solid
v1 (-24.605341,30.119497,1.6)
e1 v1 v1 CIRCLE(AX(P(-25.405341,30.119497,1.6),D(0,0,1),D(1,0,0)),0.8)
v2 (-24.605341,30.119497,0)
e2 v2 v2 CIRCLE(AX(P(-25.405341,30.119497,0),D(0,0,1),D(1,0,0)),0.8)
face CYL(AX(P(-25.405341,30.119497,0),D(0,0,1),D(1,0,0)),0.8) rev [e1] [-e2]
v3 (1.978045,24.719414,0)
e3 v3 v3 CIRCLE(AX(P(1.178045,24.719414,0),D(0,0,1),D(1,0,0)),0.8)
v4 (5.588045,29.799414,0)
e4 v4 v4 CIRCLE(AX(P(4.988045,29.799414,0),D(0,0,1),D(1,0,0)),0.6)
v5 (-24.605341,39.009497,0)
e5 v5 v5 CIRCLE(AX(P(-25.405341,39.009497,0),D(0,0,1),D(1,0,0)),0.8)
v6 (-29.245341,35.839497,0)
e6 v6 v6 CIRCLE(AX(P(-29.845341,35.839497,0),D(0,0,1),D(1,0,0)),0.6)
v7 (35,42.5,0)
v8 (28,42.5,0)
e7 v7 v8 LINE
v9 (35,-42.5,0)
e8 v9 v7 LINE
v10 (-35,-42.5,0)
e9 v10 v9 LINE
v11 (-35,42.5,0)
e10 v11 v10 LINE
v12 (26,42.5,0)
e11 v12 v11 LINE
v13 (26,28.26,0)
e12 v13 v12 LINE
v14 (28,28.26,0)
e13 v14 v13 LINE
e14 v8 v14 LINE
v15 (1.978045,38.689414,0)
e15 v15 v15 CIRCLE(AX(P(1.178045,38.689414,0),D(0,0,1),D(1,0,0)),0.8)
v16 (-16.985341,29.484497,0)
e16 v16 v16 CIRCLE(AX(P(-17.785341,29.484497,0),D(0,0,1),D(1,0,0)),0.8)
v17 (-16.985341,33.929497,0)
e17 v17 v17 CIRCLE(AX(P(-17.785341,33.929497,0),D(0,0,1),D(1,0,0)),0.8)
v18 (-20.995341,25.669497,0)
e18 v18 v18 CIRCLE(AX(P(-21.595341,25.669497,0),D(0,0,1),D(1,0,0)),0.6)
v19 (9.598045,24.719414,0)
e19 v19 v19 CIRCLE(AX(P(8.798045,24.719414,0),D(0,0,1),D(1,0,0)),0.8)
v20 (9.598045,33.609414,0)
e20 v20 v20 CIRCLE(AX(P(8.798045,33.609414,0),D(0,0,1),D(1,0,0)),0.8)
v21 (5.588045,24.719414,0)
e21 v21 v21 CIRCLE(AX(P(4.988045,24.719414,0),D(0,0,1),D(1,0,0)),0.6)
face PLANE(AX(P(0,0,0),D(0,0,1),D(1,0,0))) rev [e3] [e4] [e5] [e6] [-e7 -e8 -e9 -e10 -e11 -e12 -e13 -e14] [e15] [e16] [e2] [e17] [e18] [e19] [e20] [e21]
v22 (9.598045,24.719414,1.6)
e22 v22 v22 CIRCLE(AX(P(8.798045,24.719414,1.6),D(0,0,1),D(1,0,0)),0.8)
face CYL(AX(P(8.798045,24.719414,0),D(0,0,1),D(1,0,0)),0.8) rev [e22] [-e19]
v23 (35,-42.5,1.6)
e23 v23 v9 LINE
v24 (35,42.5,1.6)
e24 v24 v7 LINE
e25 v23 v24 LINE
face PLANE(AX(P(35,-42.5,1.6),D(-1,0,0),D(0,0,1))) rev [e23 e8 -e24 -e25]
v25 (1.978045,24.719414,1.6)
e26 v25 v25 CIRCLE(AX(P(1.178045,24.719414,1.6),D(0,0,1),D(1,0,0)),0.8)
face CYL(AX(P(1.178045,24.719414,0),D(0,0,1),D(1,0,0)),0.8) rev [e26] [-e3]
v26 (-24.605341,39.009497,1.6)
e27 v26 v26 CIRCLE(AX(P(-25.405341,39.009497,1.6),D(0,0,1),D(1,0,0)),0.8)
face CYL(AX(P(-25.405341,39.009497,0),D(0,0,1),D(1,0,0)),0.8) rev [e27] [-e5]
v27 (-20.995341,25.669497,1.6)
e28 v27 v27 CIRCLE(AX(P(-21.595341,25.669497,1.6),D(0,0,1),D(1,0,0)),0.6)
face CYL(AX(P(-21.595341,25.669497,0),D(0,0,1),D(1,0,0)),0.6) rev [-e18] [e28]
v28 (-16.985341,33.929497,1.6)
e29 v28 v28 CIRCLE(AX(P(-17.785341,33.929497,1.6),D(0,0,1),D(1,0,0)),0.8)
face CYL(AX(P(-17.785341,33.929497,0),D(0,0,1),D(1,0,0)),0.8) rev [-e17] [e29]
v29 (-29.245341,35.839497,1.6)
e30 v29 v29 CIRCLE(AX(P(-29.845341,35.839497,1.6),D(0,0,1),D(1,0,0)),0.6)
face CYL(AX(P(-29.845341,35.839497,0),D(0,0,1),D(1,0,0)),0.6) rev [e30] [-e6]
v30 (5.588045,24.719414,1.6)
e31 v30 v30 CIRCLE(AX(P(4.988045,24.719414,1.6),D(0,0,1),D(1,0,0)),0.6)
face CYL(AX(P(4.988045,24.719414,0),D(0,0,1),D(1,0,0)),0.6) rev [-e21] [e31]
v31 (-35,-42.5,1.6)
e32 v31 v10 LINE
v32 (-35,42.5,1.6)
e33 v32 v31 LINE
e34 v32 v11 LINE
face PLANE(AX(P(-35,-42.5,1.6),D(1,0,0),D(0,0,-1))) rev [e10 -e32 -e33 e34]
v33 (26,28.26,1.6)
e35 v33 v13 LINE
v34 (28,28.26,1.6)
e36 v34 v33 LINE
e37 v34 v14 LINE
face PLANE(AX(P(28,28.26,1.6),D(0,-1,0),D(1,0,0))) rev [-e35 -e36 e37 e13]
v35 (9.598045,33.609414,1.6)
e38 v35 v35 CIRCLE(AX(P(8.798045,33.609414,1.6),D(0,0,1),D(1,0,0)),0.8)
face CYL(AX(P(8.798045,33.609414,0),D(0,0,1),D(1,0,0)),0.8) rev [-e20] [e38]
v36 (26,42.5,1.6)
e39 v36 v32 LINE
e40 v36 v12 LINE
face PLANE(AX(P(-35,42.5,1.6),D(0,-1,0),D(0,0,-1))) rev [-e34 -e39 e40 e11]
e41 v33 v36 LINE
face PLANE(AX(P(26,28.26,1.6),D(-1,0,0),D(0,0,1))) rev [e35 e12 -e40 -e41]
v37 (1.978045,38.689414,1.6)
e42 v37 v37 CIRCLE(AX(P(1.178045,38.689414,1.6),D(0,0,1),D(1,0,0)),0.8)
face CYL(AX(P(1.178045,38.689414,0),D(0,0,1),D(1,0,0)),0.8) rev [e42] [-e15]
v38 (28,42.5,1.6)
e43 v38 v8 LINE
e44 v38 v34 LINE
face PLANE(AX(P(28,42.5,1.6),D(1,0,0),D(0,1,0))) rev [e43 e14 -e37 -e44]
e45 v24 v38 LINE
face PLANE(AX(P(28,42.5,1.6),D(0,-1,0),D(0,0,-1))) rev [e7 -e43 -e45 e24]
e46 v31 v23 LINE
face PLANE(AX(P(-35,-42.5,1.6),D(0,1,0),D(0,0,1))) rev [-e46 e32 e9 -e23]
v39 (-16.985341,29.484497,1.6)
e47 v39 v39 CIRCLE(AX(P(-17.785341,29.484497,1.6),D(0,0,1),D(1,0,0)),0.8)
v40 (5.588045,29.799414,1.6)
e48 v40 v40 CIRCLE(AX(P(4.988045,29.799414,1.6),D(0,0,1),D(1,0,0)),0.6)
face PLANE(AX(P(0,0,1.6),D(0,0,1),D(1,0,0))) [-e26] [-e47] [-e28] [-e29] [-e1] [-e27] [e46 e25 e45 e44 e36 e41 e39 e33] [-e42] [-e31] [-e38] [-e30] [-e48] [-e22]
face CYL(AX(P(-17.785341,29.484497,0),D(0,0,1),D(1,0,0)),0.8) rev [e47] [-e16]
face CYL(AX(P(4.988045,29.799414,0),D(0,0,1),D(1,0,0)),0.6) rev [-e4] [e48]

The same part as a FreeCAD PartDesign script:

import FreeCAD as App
import Part
import Sketcher


def add_polygon(sketch, points):
    """Adds a closed chain of lines whose ends are joined by coincident constraints."""
    first, n = sketch.GeometryCount, len(points)
    for a, b in zip(points, points[1:] + points[:1]):
        sketch.addGeometry(Part.LineSegment(App.Vector(*a, 0), App.Vector(*b, 0)), False)
    for i in range(n):
        sketch.addConstraint(Sketcher.Constraint("Coincident", first + i, 2, first + (i + 1) % n, 1))

doc = App.newDocument("Part")
body = doc.addObject("PartDesign::Body", "Body")

sketch1 = body.newObject("Sketcher::SketchObject", "Sketch")
sketch1.AttachmentSupport = (doc.getObject("XY_Plane"), [""])
sketch1.MapMode = "FlatFace"
add_polygon(sketch1, [(28, 42.5), (28, 28.3), (26, 28.3), (26, 42.5), (-35, 42.5), (-35, -42.5), (35, -42.5), (35, 42.5)])
sketch1.addConstraint([
    Sketcher.Constraint("Vertical", 0),
    Sketcher.Constraint("Horizontal", 1),
    Sketcher.Constraint("Vertical", 2),
    Sketcher.Constraint("Horizontal", 3),
    Sketcher.Constraint("Vertical", 4),
    Sketcher.Constraint("Horizontal", 5),
    Sketcher.Constraint("Vertical", 6),
    Sketcher.Constraint("Horizontal", 7),
    Sketcher.Constraint("Symmetric", 3, 2, 5, 2, -1, 1),
    Sketcher.Constraint("Horizontal", 3, 2, 6, 2),
    Sketcher.Constraint("DistanceX", 1, 2, 1, 1, 2.0),
    Sketcher.Constraint("DistanceX", 3, 2, 3, 1, 61.0),
    Sketcher.Constraint("DistanceX", 5, 1, 5, 2, 70.0),
    Sketcher.Constraint("DistanceY", 4, 2, 4, 1, 85.0),
    Sketcher.Constraint("DistanceY", 0, 2, 0, 1, 14.24),
])
pad1 = body.newObject("PartDesign::Pad", "Pad")
pad1.Profile = sketch1
pad1.Length = 1.6

sketch2 = body.newObject("Sketcher::SketchObject", "Sketch001")
sketch2.AttachmentSupport = (doc.getObject("XY_Plane"), [""])
sketch2.MapMode = "FlatFace"
sketch2.AttachmentOffset = App.Placement(App.Vector(0, 0, 1.6), App.Rotation())
sketch2.addGeometry([
    Part.Circle(App.Vector(-21.6, 25.7, 0), App.Vector(0, 0, 1), 0.6),
    Part.Circle(App.Vector(-17.8, 29.5, 0), App.Vector(0, 0, 1), 0.8),
    Part.Circle(App.Vector(-25.4, 30.1, 0), App.Vector(0, 0, 1), 0.8),
    Part.Circle(App.Vector(-17.8, 33.9, 0), App.Vector(0, 0, 1), 0.8),
    Part.Circle(App.Vector(-25.4, 39, 0), App.Vector(0, 0, 1), 0.8),
    Part.Circle(App.Vector(-29.8, 35.8, 0), App.Vector(0, 0, 1), 0.6),
    Part.Circle(App.Vector(5, 24.7, 0), App.Vector(0, 0, 1), 0.6),
    Part.Circle(App.Vector(8.8, 24.7, 0), App.Vector(0, 0, 1), 0.8),
    Part.Circle(App.Vector(1.2, 24.7, 0), App.Vector(0, 0, 1), 0.8),
    Part.Circle(App.Vector(5, 29.8, 0), App.Vector(0, 0, 1), 0.6),
    Part.Circle(App.Vector(8.8, 33.6, 0), App.Vector(0, 0, 1), 0.8),
    Part.Circle(App.Vector(1.2, 38.7, 0), App.Vector(0, 0, 1), 0.8),
], False)
sketch2.addConstraint([
    Sketcher.Constraint("Equal", 1, 2),
    Sketcher.Constraint("Equal", 2, 3),
    Sketcher.Constraint("Equal", 3, 4),
    Sketcher.Constraint("Equal", 0, 5),
    Sketcher.Constraint("Equal", 5, 6),
    Sketcher.Constraint("Equal", 4, 7),
    Sketcher.Constraint("Equal", 7, 8),
    Sketcher.Constraint("Equal", 6, 9),
    Sketcher.Constraint("Equal", 8, 10),
    Sketcher.Constraint("Equal", 10, 11),
    Sketcher.Constraint("Horizontal", 6, 3, 7, 3),
    Sketcher.Constraint("Horizontal", 7, 3, 8, 3),
    Sketcher.Constraint("Vertical", 1, 3, 3, 3),
    Sketcher.Constraint("Vertical", 2, 3, 4, 3),
    Sketcher.Constraint("Vertical", 6, 3, 9, 3),
    Sketcher.Constraint("Vertical", 7, 3, 10, 3),
    Sketcher.Constraint("Vertical", 8, 3, 11, 3),
    Sketcher.Constraint("Diameter", 0, 1.2),
    Sketcher.Constraint("Diameter", 1, 1.6),
    Sketcher.Constraint("DistanceX", 0, 3, 1, 3, 3.81),
    Sketcher.Constraint("DistanceX", 2, 3, 0, 3, 3.81),
    Sketcher.Constraint("DistanceY", 0, 3, 2, 3, 4.45),
    Sketcher.Constraint("DistanceY", 2, 3, 3, 3, 3.81),
    Sketcher.Constraint("DistanceY", 2, 3, 4, 3, 8.89),
    Sketcher.Constraint("DistanceX", 5, 3, 4, 3, 4.44),
    Sketcher.Constraint("DistanceY", 5, 3, 4, 3, 3.17),
    Sketcher.Constraint("DistanceX", 6, 3, 7, 3, 3.81),
    Sketcher.Constraint("DistanceX", 8, 3, 6, 3, 3.81),
    Sketcher.Constraint("DistanceY", 6, 3, 9, 3, 5.08),
    Sketcher.Constraint("DistanceY", 9, 3, 10, 3, 3.81),
    Sketcher.Constraint("DistanceY", 10, 3, 11, 3, 5.08),
    Sketcher.Constraint("DistanceY", 0, 3, 1, 3, 3.815),
    Sketcher.Constraint("DistanceX", 0, 3, -1, 1, 21.595341),
    Sketcher.Constraint("DistanceY", -1, 1, 0, 3, 25.669497),
    Sketcher.Constraint("DistanceX", -1, 1, 6, 3, 4.988045),
    Sketcher.Constraint("DistanceY", -1, 1, 6, 3, 24.719414),
])
pocket1 = body.newObject("PartDesign::Pocket", "Pocket")
pocket1.Profile = sketch2
pocket1.Type = "ThroughAll"

doc.recompute()
